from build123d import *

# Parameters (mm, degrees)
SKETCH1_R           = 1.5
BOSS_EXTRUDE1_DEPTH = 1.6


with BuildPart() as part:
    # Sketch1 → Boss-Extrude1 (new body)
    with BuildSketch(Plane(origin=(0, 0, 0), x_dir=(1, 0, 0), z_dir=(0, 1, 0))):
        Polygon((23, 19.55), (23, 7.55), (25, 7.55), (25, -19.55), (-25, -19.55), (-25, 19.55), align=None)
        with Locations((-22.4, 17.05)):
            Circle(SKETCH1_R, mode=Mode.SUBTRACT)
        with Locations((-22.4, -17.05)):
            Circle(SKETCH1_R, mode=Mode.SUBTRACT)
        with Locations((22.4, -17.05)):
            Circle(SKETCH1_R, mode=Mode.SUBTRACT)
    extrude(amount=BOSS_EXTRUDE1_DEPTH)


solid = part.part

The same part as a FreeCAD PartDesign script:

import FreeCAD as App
import Part
import Sketcher
Q = App.Units.Quantity

doc = App.newDocument("Part")
params = doc.addObject("Spreadsheet::Sheet", "Params")
for row, (alias, value) in enumerate([
    ("sketch1_diameter", "3 mm"),
    ("sketch1_width", "48 mm"),
    ("sketch1_width2", "50 mm"),
    ("sketch1_height", "12 mm"),
    ("sketch1_height2", "39.1 mm"),
    ("pad1_length", "1.6 mm"),
], start=1):
    params.set(f"A{row}", alias)
    params.set(f"B{row}", "=" + value)
    params.setAlias(f"B{row}", alias)

body = doc.addObject("PartDesign::Body", "Body")

# Sketch on XZ plane
sketch1 = doc.addObject("Sketcher::SketchObject", "Sketch")
body.addObject(sketch1)
sketch1.AttachmentSupport = (doc.XZ_Plane, [""])
sketch1.MapMode = "FlatFace"
sketch1.addGeometry([
    Part.LineSegment(App.Vector(23, -7.5, 0), App.Vector(23, -19.6, 0)),  # 0
    Part.LineSegment(App.Vector(23, -19.6, 0), App.Vector(-25, -19.6, 0)),  # 1
    Part.LineSegment(App.Vector(-25, -19.6, 0), App.Vector(-25, 19.6, 0)),  # 2
    Part.LineSegment(App.Vector(-25, 19.6, 0), App.Vector(25, 19.6, 0)),  # 3
    Part.LineSegment(App.Vector(25, 19.6, 0), App.Vector(25, -7.5, 0)),  # 4
    Part.LineSegment(App.Vector(25, -7.5, 0), App.Vector(23, -7.5, 0)),  # 5
    Part.Circle(App.Vector(22.4, 17.1, 0), App.Vector(0, 0, 1), 1.5),  # 6
    Part.Circle(App.Vector(-22.4, 17.1, 0), App.Vector(0, 0, 1), 1.5),  # 7
    Part.Circle(App.Vector(-22.4, -17.1, 0), App.Vector(0, 0, 1), 1.5),  # 8
], False)
sketch1.addConstraint([
    Sketcher.Constraint("Coincident", 0, 2, 1, 1),
    Sketcher.Constraint("Coincident", 1, 2, 2, 1),
    Sketcher.Constraint("Coincident", 2, 2, 3, 1),
    Sketcher.Constraint("Coincident", 3, 2, 4, 1),
    Sketcher.Constraint("Coincident", 4, 2, 5, 1),
    Sketcher.Constraint("Coincident", 5, 2, 0, 1),
    Sketcher.Constraint("Vertical", 0),
    Sketcher.Constraint("Horizontal", 1),
    Sketcher.Constraint("Vertical", 2),
    Sketcher.Constraint("Horizontal", 3),
    Sketcher.Constraint("Vertical", 4),
    Sketcher.Constraint("Horizontal", 5),
    Sketcher.Constraint("Equal", 6, 7),
    Sketcher.Constraint("Equal", 7, 8),
    Sketcher.Constraint("Symmetric", 6, 3, 8, 3, -1, 1),
    Sketcher.Constraint("Symmetric", 1, 2, 3, 2, -1, 1),
    Sketcher.Constraint("Symmetric", 6, 3, 7, 3, -2),
    Sketcher.Constraint("Diameter", 6, Q("3 mm")),
    Sketcher.Constraint("DistanceX", 1, 2, 1, 1, Q("48 mm")),
    Sketcher.Constraint("DistanceX", 3, 1, 3, 2, Q("50 mm")),
    Sketcher.Constraint("DistanceY", 0, 2, 0, 1, Q("12 mm")),
    Sketcher.Constraint("DistanceY", 2, 1, 2, 2, Q("39.1 mm")),
    Sketcher.Constraint("DistanceX", -1, 1, 6, 3, Q("22.4 mm")),
    Sketcher.Constraint("DistanceY", 8, 3, 7, 3, Q("34.1 mm")),
])
sketch1.setExpression("Constraints[17]", "Params.sketch1_diameter")
sketch1.setExpression("Constraints[18]", "Params.sketch1_width")
sketch1.setExpression("Constraints[19]", "Params.sketch1_width2")
sketch1.setExpression("Constraints[20]", "Params.sketch1_height")
sketch1.setExpression("Constraints[21]", "Params.sketch1_height2")
pad1 = doc.addObject("PartDesign::Pad", "Pad")
body.addObject(pad1)
pad1.Profile = sketch1
pad1.setExpression("Length", "Params.pad1_length")
pad1.Reversed = True

doc.recompute()
